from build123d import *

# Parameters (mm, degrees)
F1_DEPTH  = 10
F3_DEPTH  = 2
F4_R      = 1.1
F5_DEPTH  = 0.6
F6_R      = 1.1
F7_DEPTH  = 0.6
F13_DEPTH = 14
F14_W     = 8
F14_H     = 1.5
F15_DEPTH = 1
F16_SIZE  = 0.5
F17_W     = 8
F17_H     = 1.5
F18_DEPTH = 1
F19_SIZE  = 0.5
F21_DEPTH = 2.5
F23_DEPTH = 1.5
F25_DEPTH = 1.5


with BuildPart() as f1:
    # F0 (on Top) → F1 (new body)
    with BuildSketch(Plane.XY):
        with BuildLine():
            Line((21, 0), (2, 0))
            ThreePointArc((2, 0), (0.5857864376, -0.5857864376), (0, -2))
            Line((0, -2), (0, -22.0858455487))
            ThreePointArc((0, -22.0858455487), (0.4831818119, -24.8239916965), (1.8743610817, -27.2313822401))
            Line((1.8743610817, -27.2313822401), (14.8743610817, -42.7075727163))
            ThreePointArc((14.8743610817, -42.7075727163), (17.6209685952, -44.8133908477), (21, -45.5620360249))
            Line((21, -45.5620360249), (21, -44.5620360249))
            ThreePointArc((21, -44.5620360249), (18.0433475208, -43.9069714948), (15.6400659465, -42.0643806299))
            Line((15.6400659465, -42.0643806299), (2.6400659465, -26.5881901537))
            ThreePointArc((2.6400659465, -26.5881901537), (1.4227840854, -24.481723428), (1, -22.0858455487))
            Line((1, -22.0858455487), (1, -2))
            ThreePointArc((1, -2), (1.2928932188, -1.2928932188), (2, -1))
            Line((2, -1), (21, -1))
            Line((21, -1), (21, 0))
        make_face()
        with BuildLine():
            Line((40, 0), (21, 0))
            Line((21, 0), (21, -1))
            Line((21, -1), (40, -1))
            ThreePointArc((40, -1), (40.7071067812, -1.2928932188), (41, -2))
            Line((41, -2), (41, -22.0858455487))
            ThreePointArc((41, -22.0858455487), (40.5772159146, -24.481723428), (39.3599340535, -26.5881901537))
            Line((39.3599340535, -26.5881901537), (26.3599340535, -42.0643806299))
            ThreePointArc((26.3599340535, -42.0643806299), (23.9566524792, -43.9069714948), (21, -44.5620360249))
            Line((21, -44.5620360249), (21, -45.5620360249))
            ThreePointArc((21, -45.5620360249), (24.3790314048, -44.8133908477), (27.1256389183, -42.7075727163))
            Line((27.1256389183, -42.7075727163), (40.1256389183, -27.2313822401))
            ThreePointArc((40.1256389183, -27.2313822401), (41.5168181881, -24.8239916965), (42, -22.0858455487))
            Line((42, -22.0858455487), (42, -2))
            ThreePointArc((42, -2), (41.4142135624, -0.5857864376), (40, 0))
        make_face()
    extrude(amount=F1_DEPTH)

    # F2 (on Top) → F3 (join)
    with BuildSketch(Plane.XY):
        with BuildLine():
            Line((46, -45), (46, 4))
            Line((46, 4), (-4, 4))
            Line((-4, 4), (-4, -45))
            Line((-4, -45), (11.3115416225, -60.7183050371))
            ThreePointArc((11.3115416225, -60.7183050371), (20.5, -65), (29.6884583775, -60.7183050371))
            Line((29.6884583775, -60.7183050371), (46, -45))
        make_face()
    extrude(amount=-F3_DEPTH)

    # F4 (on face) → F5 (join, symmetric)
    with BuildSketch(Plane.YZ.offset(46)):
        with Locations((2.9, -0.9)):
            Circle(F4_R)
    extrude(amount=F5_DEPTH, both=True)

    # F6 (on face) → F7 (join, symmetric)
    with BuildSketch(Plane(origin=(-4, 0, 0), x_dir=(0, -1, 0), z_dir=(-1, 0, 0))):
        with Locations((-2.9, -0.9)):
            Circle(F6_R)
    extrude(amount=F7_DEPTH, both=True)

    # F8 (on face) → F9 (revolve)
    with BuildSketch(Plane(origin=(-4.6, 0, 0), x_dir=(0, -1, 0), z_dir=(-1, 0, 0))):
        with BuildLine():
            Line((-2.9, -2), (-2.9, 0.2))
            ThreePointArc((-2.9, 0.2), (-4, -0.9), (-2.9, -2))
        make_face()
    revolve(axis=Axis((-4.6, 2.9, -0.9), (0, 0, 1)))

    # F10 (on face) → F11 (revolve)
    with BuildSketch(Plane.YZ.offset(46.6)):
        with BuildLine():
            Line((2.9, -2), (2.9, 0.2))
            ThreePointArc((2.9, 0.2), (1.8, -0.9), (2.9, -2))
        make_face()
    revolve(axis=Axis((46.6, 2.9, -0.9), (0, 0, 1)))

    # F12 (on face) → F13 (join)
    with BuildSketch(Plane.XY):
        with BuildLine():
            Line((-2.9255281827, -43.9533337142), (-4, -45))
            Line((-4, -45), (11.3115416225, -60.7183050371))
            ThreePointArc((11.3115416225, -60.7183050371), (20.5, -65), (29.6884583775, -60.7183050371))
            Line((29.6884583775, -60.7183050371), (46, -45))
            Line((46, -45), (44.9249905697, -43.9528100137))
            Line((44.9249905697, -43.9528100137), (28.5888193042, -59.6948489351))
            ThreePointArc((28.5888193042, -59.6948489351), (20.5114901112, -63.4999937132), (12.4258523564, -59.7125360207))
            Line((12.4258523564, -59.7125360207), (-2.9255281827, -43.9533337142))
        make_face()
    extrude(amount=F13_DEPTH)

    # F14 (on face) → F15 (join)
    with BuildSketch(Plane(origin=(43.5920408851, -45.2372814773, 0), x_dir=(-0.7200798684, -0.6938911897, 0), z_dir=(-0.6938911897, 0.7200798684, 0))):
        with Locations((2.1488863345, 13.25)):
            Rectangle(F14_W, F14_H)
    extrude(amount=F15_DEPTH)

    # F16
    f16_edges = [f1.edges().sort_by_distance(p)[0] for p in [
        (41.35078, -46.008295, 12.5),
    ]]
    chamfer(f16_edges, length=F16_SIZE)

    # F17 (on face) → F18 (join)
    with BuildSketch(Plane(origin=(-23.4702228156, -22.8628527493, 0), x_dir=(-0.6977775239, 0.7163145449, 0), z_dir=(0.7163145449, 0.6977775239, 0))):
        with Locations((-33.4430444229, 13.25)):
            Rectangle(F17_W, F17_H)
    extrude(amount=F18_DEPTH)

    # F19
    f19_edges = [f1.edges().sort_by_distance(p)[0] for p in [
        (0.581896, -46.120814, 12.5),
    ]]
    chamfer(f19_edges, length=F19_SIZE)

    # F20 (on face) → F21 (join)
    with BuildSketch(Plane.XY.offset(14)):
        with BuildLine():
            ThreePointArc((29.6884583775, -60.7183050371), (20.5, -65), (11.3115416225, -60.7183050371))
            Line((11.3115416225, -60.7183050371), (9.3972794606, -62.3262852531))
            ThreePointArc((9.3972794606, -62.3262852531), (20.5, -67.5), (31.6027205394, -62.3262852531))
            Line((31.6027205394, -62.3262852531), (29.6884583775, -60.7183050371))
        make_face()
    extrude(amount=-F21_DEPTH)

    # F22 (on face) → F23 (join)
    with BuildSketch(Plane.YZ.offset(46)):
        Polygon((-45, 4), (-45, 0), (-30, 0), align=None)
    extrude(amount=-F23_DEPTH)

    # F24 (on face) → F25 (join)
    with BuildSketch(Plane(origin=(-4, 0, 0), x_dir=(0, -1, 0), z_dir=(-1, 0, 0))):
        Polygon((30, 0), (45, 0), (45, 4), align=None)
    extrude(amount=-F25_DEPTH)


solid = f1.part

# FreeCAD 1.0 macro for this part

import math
import FreeCAD as App
import Part
import Sketcher
Q = App.Units.Quantity


def edges_at(feature, points):
    """Names of the edges that pass closest to the given points."""
    edges = feature.Shape.Edges
    near = lambda p: min(range(len(edges)), key=lambda i: edges[i].distToShape(Part.Vertex(*p))[0])
    return sorted({f"Edge{near(p) + 1}" for p in points})

doc = App.newDocument("Part")
body = doc.addObject("PartDesign::Body", "Body")

# Sketch on XY plane
sketch1 = body.newObject("Sketcher::SketchObject", "Sketch")
sketch1.AttachmentSupport = (doc.getObject("XY_Plane"), [""])
sketch1.MapMode = "FlatFace"
sketch1.addGeometry(Part.ArcOfCircle(Part.Circle(App.Vector(2, -2, 0), App.Vector(0, 0, 1), 2), math.radians(90), math.radians(180)), False)
sketch1.addGeometry(Part.LineSegment(App.Vector(0, -2, 0), App.Vector(0, -22.1, 0)), False)
sketch1.addGeometry(Part.ArcOfCircle(Part.Circle(App.Vector(8, -22.1, 0), App.Vector(0, 0, 1), 8), math.radians(180), math.radians(220)), False)
sketch1.addGeometry(Part.LineSegment(App.Vector(1.9, -27.2, 0), App.Vector(14.9, -42.7, 0)), False)
sketch1.addGeometry(Part.ArcOfCircle(Part.Circle(App.Vector(21, -37.6, 0), App.Vector(0, 0, 1), 8), math.radians(-140), math.radians(-90)), False)
sketch1.addGeometry(Part.ArcOfCircle(Part.Circle(App.Vector(21, -37.6, 0), App.Vector(0, 0, 1), 8), math.radians(-90), math.radians(-40)), False)
sketch1.addGeometry(Part.LineSegment(App.Vector(27.1, -42.7, 0), App.Vector(40.1, -27.2, 0)), False)
sketch1.addGeometry(Part.ArcOfCircle(Part.Circle(App.Vector(34, -22.1, 0), App.Vector(0, 0, 1), 8), math.radians(-40), math.radians(0)), False)
sketch1.addGeometry(Part.LineSegment(App.Vector(42, -22.1, 0), App.Vector(42, -2, 0)), False)
sketch1.addGeometry(Part.ArcOfCircle(Part.Circle(App.Vector(40, -2, 0), App.Vector(0, 0, 1), 2), math.radians(0), math.radians(90)), False)
sketch1.addGeometry(Part.LineSegment(App.Vector(40, 0, 0), App.Vector(2, 0, 0)), False)
sketch1.addGeometry(Part.ArcOfCircle(Part.Circle(App.Vector(21, -37.6, 0), App.Vector(0, 0, 1), 7), math.radians(-140), math.radians(-90)), False)
sketch1.addGeometry(Part.LineSegment(App.Vector(15.6, -42.1, 0), App.Vector(2.6, -26.6, 0)), False)
sketch1.addGeometry(Part.ArcOfCircle(Part.Circle(App.Vector(8, -22.1, 0), App.Vector(0, 0, 1), 7), math.radians(180), math.radians(220)), False)
sketch1.addGeometry(Part.LineSegment(App.Vector(1, -22.1, 0), App.Vector(1, -2, 0)), False)
sketch1.addGeometry(Part.ArcOfCircle(Part.Circle(App.Vector(2, -2, 0), App.Vector(0, 0, 1), 1), math.radians(90), math.radians(180)), False)
sketch1.addGeometry(Part.LineSegment(App.Vector(2, -1, 0), App.Vector(40, -1, 0)), False)
sketch1.addGeometry(Part.ArcOfCircle(Part.Circle(App.Vector(40, -2, 0), App.Vector(0, 0, 1), 1), math.radians(0), math.radians(90)), False)
sketch1.addGeometry(Part.LineSegment(App.Vector(41, -2, 0), App.Vector(41, -22.1, 0)), False)
sketch1.addGeometry(Part.ArcOfCircle(Part.Circle(App.Vector(34, -22.1, 0), App.Vector(0, 0, 1), 7), math.radians(-40), math.radians(0)), False)
sketch1.addGeometry(Part.LineSegment(App.Vector(39.4, -26.6, 0), App.Vector(26.4, -42.1, 0)), False)
sketch1.addGeometry(Part.ArcOfCircle(Part.Circle(App.Vector(21, -37.6, 0), App.Vector(0, 0, 1), 7), math.radians(-90), math.radians(-40)), False)
sketch1.addConstraint(Sketcher.Constraint("Tangent", 0, 2, 1, 1))
sketch1.addConstraint(Sketcher.Constraint("Tangent", 1, 2, 2, 1))
sketch1.addConstraint(Sketcher.Constraint("Tangent", 2, 2, 3, 1))
sketch1.addConstraint(Sketcher.Constraint("Tangent", 3, 2, 4, 1))
sketch1.addConstraint(Sketcher.Constraint("Tangent", 4, 2, 5, 1))
sketch1.addConstraint(Sketcher.Constraint("Tangent", 5, 2, 6, 1))
sketch1.addConstraint(Sketcher.Constraint("Tangent", 6, 2, 7, 1))
sketch1.addConstraint(Sketcher.Constraint("Tangent", 7, 2, 8, 1))
sketch1.addConstraint(Sketcher.Constraint("Tangent", 8, 2, 9, 1))
sketch1.addConstraint(Sketcher.Constraint("Tangent", 9, 2, 10, 1))
sketch1.addConstraint(Sketcher.Constraint("Tangent", 10, 2, 0, 1))
sketch1.addConstraint(Sketcher.Constraint("Tangent", 11, 1, 12, 1))
sketch1.addConstraint(Sketcher.Constraint("Tangent", 12, 2, 13, 2))
sketch1.addConstraint(Sketcher.Constraint("Tangent", 13, 1, 14, 1))
sketch1.addConstraint(Sketcher.Constraint("Tangent", 14, 2, 15, 2))
sketch1.addConstraint(Sketcher.Constraint("Tangent", 15, 1, 16, 1))
sketch1.addConstraint(Sketcher.Constraint("Tangent", 16, 2, 17, 2))
sketch1.addConstraint(Sketcher.Constraint("Tangent", 17, 1, 18, 1))
sketch1.addConstraint(Sketcher.Constraint("Tangent", 18, 2, 19, 2))
sketch1.addConstraint(Sketcher.Constraint("Tangent", 19, 1, 20, 1))
sketch1.addConstraint(Sketcher.Constraint("Tangent", 20, 2, 21, 2))
sketch1.addConstraint(Sketcher.Constraint("Tangent", 21, 1, 11, 2))
sketch1.addConstraint(Sketcher.Constraint("Vertical", 1))
sketch1.addConstraint(Sketcher.Constraint("Vertical", 8))
sketch1.addConstraint(Sketcher.Constraint("Horizontal", 10))
sketch1.addConstraint(Sketcher.Constraint("Vertical", 14))
sketch1.addConstraint(Sketcher.Constraint("Horizontal", 16))
sketch1.addConstraint(Sketcher.Constraint("Vertical", 18))
sketch1.addConstraint(Sketcher.Constraint("Coincident", 11, 3, 4, 3))
sketch1.addConstraint(Sketcher.Constraint("Coincident", 13, 3, 2, 3))
sketch1.addConstraint(Sketcher.Constraint("Coincident", 15, 3, 0, 3))
sketch1.addConstraint(Sketcher.Constraint("Coincident", 17, 3, 9, 3))
sketch1.addConstraint(Sketcher.Constraint("Coincident", 19, 3, 7, 3))
sketch1.addConstraint(Sketcher.Constraint("Equal", 2, 4))
sketch1.addConstraint(Sketcher.Constraint("Equal", 4, 5))
sketch1.addConstraint(Sketcher.Constraint("Equal", 5, 7))
sketch1.addConstraint(Sketcher.Constraint("Equal", 0, 9))
sketch1.addConstraint(Sketcher.Constraint("Equal", 11, 13))
sketch1.addConstraint(Sketcher.Constraint("Equal", 19, 21))
sketch1.addConstraint(Sketcher.Constraint("PointOnObject", 0, 2, -2))
sketch1.addConstraint(Sketcher.Constraint("PointOnObject", 9, 2, -1))
sketch1.addConstraint(Sketcher.Constraint("Horizontal", 2, 3, 7, 3))
sketch1.addConstraint(Sketcher.Constraint("Horizontal", 3, 2, 5, 2))
sketch1.addConstraint(Sketcher.Constraint("Vertical", 21, 3, 4, 2))
sketch1.addConstraint(Sketcher.Constraint("Vertical", 4, 2, 21, 1))
sketch1.addConstraint(Sketcher.Constraint("Radius", 0, Q("2 mm")))
sketch1.addConstraint(Sketcher.Constraint("Radius", 2, Q("8 mm")))
sketch1.addConstraint(Sketcher.Constraint("Radius", 11, Q("7 mm")))
sketch1.addConstraint(Sketcher.Constraint("DistanceX", 10, 2, 10, 1, Q("38 mm")))
sketch1.addConstraint(Sketcher.Constraint("Distance", 3, Q("20.211691 mm")))
sketch1.addConstraint(Sketcher.Constraint("DistanceY", 1, 2, 1, 1, Q("20.085846 mm")))
pad1 = body.newObject("PartDesign::Pad", "Pad")
pad1.Profile = sketch1
pad1.Length = 10

# Sketch on XY plane
sketch2 = body.newObject("Sketcher::SketchObject", "Sketch001")
sketch2.AttachmentSupport = (doc.getObject("XY_Plane"), [""])
sketch2.MapMode = "FlatFace"
sketch2.addGeometry(Part.LineSegment(App.Vector(46, -45, 0), App.Vector(46, 4, 0)), False)
sketch2.addGeometry(Part.LineSegment(App.Vector(46, 4, 0), App.Vector(-4, 4, 0)), False)
sketch2.addGeometry(Part.LineSegment(App.Vector(-4, 4, 0), App.Vector(-4, -45, 0)), False)
sketch2.addGeometry(Part.LineSegment(App.Vector(-4, -45, 0), App.Vector(11, -61, 0)), False)
sketch2.addGeometry(Part.ArcOfCircle(Part.Circle(App.Vector(20, -53, 0), App.Vector(0, 0, 1), 12), math.radians(-140), math.radians(-40)), False)
sketch2.addGeometry(Part.LineSegment(App.Vector(30, -61, 0), App.Vector(46, -45, 0)), False)
sketch2.addConstraint(Sketcher.Constraint("Coincident", 0, 2, 1, 1))
sketch2.addConstraint(Sketcher.Constraint("Coincident", 1, 2, 2, 1))
sketch2.addConstraint(Sketcher.Constraint("Coincident", 2, 2, 3, 1))
sketch2.addConstraint(Sketcher.Constraint("Coincident", 3, 2, 4, 1))
sketch2.addConstraint(Sketcher.Constraint("Coincident", 4, 2, 5, 1))
sketch2.addConstraint(Sketcher.Constraint("Coincident", 5, 2, 0, 1))
sketch2.addConstraint(Sketcher.Constraint("Vertical", 0))
sketch2.addConstraint(Sketcher.Constraint("Horizontal", 1))
sketch2.addConstraint(Sketcher.Constraint("Vertical", 2))
sketch2.addConstraint(Sketcher.Constraint("Horizontal", 3, 2, 4, 2))
sketch2.addConstraint(Sketcher.Constraint("Horizontal", 2, 2, 5, 2))
sketch2.addConstraint(Sketcher.Constraint("Radius", 4, Q("12 mm")))
sketch2.addConstraint(Sketcher.Constraint("DistanceX", 1, 2, 1, 1, Q("50 mm")))
sketch2.addConstraint(Sketcher.Constraint("DistanceY", 0, 1, 0, 2, Q("49 mm")))
sketch2.addConstraint(Sketcher.Constraint("DistanceY", 4, 3, -1, 1, Q("53 mm")))
sketch2.addConstraint(Sketcher.Constraint("DistanceX", -1, 1, 0, 2, Q("46 mm")))
sketch2.addConstraint(Sketcher.Constraint("DistanceY", -1, 1, 0, 2, Q("4 mm")))
sketch2.addConstraint(Sketcher.Constraint("DistanceX", -1, 1, 4, 3, Q("20.5 mm")))
sketch2.addConstraint(Sketcher.Constraint("Distance", 3, Q("21.9433 mm")))
pad2 = body.newObject("PartDesign::Pad", "Pad001")
pad2.Profile = sketch2
pad2.Length = 2
pad2.Reversed = True

# Sketch on YZ plane
sketch3 = body.newObject("Sketcher::SketchObject", "Sketch002")
sketch3.AttachmentSupport = (doc.getObject("YZ_Plane"), [""])
sketch3.MapMode = "FlatFace"
sketch3.AttachmentOffset = App.Placement(App.Vector(0, 0, 46), App.Rotation())
sketch3.addGeometry(Part.Circle(App.Vector(2.9, -0.9, 0), App.Vector(0, 0, 1), 1.1), False)
sketch3.addConstraint(Sketcher.Constraint("Diameter", 0, Q("2.2 mm")))
sketch3.addConstraint(Sketcher.Constraint("DistanceX", -1, 1, 0, 3, Q("2.9 mm")))
sketch3.addConstraint(Sketcher.Constraint("DistanceY", 0, 3, -1, 1, Q("0.9 mm")))
pad3 = body.newObject("PartDesign::Pad", "Pad002")
pad3.Profile = sketch3
pad3.Length = 1.2
pad3.Midplane = True

# Sketch on YZ plane
sketch4 = body.newObject("Sketcher::SketchObject", "Sketch003")
sketch4.AttachmentSupport = (doc.getObject("YZ_Plane"), [""])
sketch4.MapMode = "FlatFace"
sketch4.AttachmentOffset = App.Placement(App.Vector(0, 0, -4), App.Rotation())
sketch4.addGeometry(Part.Circle(App.Vector(2.9, -0.9, 0), App.Vector(0, 0, 1), 1.1), False)
sketch4.addConstraint(Sketcher.Constraint("Diameter", 0, Q("2.2 mm")))
sketch4.addConstraint(Sketcher.Constraint("DistanceX", -1, 1, 0, 3, Q("2.9 mm")))
sketch4.addConstraint(Sketcher.Constraint("DistanceY", 0, 3, -1, 1, Q("0.9 mm")))
pad4 = body.newObject("PartDesign::Pad", "Pad003")
pad4.Profile = sketch4
pad4.Length = 1.2
pad4.Midplane = True

# Sketch on YZ plane
sketch5 = body.newObject("Sketcher::SketchObject", "Sketch004")
sketch5.AttachmentSupport = (doc.getObject("YZ_Plane"), [""])
sketch5.MapMode = "FlatFace"
sketch5.AttachmentOffset = App.Placement(App.Vector(0, 0, -4.6), App.Rotation())
sketch5.addGeometry(Part.LineSegment(App.Vector(2.9, -2, 0), App.Vector(2.9, 0.2, 0)), False)
sketch5.addGeometry(Part.ArcOfCircle(Part.Circle(App.Vector(2.9, -0.9, 0), App.Vector(0, 0, 1), 1.1), math.radians(-90), math.radians(90)), False)
sketch5.addGeometry(Part.LineSegment(App.Vector(2.9, -2, 0), App.Vector(2.9, 0.2, 0)), True)  # axis
sketch5.addConstraint(Sketcher.Constraint("Coincident", 0, 1, 1, 1))
sketch5.addConstraint(Sketcher.Constraint("Coincident", 1, 2, 0, 2))
sketch5.addConstraint(Sketcher.Constraint("Vertical", 0))
sketch5.addConstraint(Sketcher.Constraint("Vertical", 2))
sketch5.addConstraint(Sketcher.Constraint("Coincident", 2, 1, 0, 1))
sketch5.addConstraint(Sketcher.Constraint("Vertical", 1, 3, 0, 1))
sketch5.addConstraint(Sketcher.Constraint("Equal", 0, 2))
sketch5.addConstraint(Sketcher.Constraint("Radius", 1, Q("1.1 mm")))
sketch5.addConstraint(Sketcher.Constraint("DistanceY", 0, 1, -1, 1, Q("2 mm")))
sketch5.addConstraint(Sketcher.Constraint("DistanceX", -1, 1, 1, 3, Q("2.9 mm")))
revolution = body.newObject("PartDesign::Revolution", "Revolution")
revolution.Profile = sketch5
revolution.ReferenceAxis = (sketch5, ["Axis0"])
revolution.Angle = 360

# Sketch on YZ plane
sketch6 = body.newObject("Sketcher::SketchObject", "Sketch005")
sketch6.AttachmentSupport = (doc.getObject("YZ_Plane"), [""])
sketch6.MapMode = "FlatFace"
sketch6.AttachmentOffset = App.Placement(App.Vector(0, 0, 46.6), App.Rotation())
sketch6.addGeometry(Part.LineSegment(App.Vector(2.9, -2, 0), App.Vector(2.9, 0.2, 0)), False)
sketch6.addGeometry(Part.ArcOfCircle(Part.Circle(App.Vector(2.9, -0.9, 0), App.Vector(0, 0, 1), 1.1), math.radians(90), math.radians(270)), False)
sketch6.addGeometry(Part.LineSegment(App.Vector(2.9, -2, 0), App.Vector(2.9, 0.2, 0)), True)  # axis
sketch6.addConstraint(Sketcher.Constraint("Coincident", 0, 1, 1, 2))
sketch6.addConstraint(Sketcher.Constraint("Coincident", 1, 1, 0, 2))
sketch6.addConstraint(Sketcher.Constraint("Vertical", 0))
sketch6.addConstraint(Sketcher.Constraint("Vertical", 2))
sketch6.addConstraint(Sketcher.Constraint("Coincident", 2, 1, 0, 1))
sketch6.addConstraint(Sketcher.Constraint("Vertical", 1, 3, 0, 1))
sketch6.addConstraint(Sketcher.Constraint("Equal", 0, 2))
sketch6.addConstraint(Sketcher.Constraint("Radius", 1, Q("1.1 mm")))
sketch6.addConstraint(Sketcher.Constraint("DistanceY", 0, 1, -1, 1, Q("2 mm")))
sketch6.addConstraint(Sketcher.Constraint("DistanceX", -1, 1, 1, 3, Q("2.9 mm")))
revolution2 = body.newObject("PartDesign::Revolution", "Revolution001")
revolution2.Profile = sketch6
revolution2.ReferenceAxis = (sketch6, ["Axis0"])
revolution2.Angle = 360

# Sketch on XY plane
sketch7 = body.newObject("Sketcher::SketchObject", "Sketch006")
sketch7.AttachmentSupport = (doc.getObject("XY_Plane"), [""])
sketch7.MapMode = "FlatFace"
sketch7.addGeometry(Part.LineSegment(App.Vector(-2.9, -44, 0), App.Vector(-4, -45, 0)), False)
sketch7.addGeometry(Part.LineSegment(App.Vector(-4, -45, 0), App.Vector(11.3, -60.7, 0)), False)
sketch7.addGeometry(Part.ArcOfCircle(Part.Circle(App.Vector(20.5, -53, 0), App.Vector(0, 0, 1), 12), math.radians(-140), math.radians(-40)), False)
sketch7.addGeometry(Part.LineSegment(App.Vector(29.7, -60.7, 0), App.Vector(46, -45, 0)), False)
sketch7.addGeometry(Part.LineSegment(App.Vector(46, -45, 0), App.Vector(44.9, -44, 0)), False)
sketch7.addGeometry(Part.LineSegment(App.Vector(44.9, -44, 0), App.Vector(28.6, -59.7, 0)), False)
sketch7.addGeometry(Part.ArcOfCircle(Part.Circle(App.Vector(20.5, -53, 0), App.Vector(0, 0, 1), 10.5), math.radians(-140), math.radians(-40)), False)
sketch7.addGeometry(Part.LineSegment(App.Vector(12.4, -59.7, 0), App.Vector(-2.9, -44, 0)), False)
sketch7.addConstraint(Sketcher.Constraint("Coincident", 0, 2, 1, 1))
sketch7.addConstraint(Sketcher.Constraint("Coincident", 1, 2, 2, 1))
sketch7.addConstraint(Sketcher.Constraint("Coincident", 2, 2, 3, 1))
sketch7.addConstraint(Sketcher.Constraint("Coincident", 3, 2, 4, 1))
sketch7.addConstraint(Sketcher.Constraint("Coincident", 4, 2, 5, 1))
sketch7.addConstraint(Sketcher.Constraint("Coincident", 5, 2, 6, 2))
sketch7.addConstraint(Sketcher.Constraint("Coincident", 6, 1, 7, 1))
sketch7.addConstraint(Sketcher.Constraint("Coincident", 7, 2, 0, 1))
sketch7.addConstraint(Sketcher.Constraint("Coincident", 6, 3, 2, 3))
sketch7.addConstraint(Sketcher.Constraint("Perpendicular", 0, 1))
sketch7.addConstraint(Sketcher.Constraint("Parallel", 3, 5))
sketch7.addConstraint(Sketcher.Constraint("Parallel", 1, 7))
sketch7.addConstraint(Sketcher.Constraint("Horizontal", 1, 2, 2, 2))
sketch7.addConstraint(Sketcher.Constraint("Horizontal", 0, 2, 3, 2))
sketch7.addConstraint(Sketcher.Constraint("Radius", 2, Q("12 mm")))
sketch7.addConstraint(Sketcher.Constraint("Radius", 6, Q("10.5 mm")))
sketch7.addConstraint(Sketcher.Constraint("DistanceY", 2, 3, -1, 1, Q("53 mm")))
sketch7.addConstraint(Sketcher.Constraint("DistanceX", 0, 2, -1, 1, Q("4 mm")))
sketch7.addConstraint(Sketcher.Constraint("DistanceY", 0, 2, -1, 1, Q("45 mm")))
sketch7.addConstraint(Sketcher.Constraint("DistanceX", -1, 1, 3, 2, Q("46 mm")))
sketch7.addConstraint(Sketcher.Constraint("Distance", 0, Q("1.5 mm")))
sketch7.addConstraint(Sketcher.Constraint("DistanceX", -1, 1, 2, 3, Q("20.5 mm")))
sketch7.addConstraint(Sketcher.Constraint("Distance", 1, Q("21.9433 mm")))
sketch7.addConstraint(Sketcher.Constraint("Distance", 4, Q("1.500751 mm")))
sketch7.addConstraint(Sketcher.Constraint("Distance", 5, Q("22.68661 mm")))
pad5 = body.newObject("PartDesign::Pad", "Pad004")
pad5.Profile = sketch7
pad5.Length = 14

# Sketch on an angled plane
sketch8 = body.newObject("Sketcher::SketchObject", "Sketch007")
sketch8.Placement = App.Placement(App.Vector(43.592041, -45.237281, 0), App.Rotation(App.Vector(-0.720079868, -0.69389119, 0), App.Vector(0, 0, 1), App.Vector(-0.69389119, 0.720079868, 0), "ZXY"))
sketch8.addGeometry(Part.LineSegment(App.Vector(-1.9, 14, 0), App.Vector(-1.9, 12.5, 0)), False)
sketch8.addGeometry(Part.LineSegment(App.Vector(-1.9, 12.5, 0), App.Vector(6.1, 12.5, 0)), False)
sketch8.addGeometry(Part.LineSegment(App.Vector(6.1, 12.5, 0), App.Vector(6.1, 14, 0)), False)
sketch8.addGeometry(Part.LineSegment(App.Vector(6.1, 14, 0), App.Vector(-1.9, 14, 0)), False)
sketch8.addConstraint(Sketcher.Constraint("Coincident", 0, 2, 1, 1))
sketch8.addConstraint(Sketcher.Constraint("Coincident", 1, 2, 2, 1))
sketch8.addConstraint(Sketcher.Constraint("Coincident", 2, 2, 3, 1))
sketch8.addConstraint(Sketcher.Constraint("Coincident", 3, 2, 0, 1))
sketch8.addConstraint(Sketcher.Constraint("Vertical", 0))
sketch8.addConstraint(Sketcher.Constraint("Horizontal", 1))
sketch8.addConstraint(Sketcher.Constraint("Vertical", 2))
sketch8.addConstraint(Sketcher.Constraint("Horizontal", 3))
sketch8.addConstraint(Sketcher.Constraint("DistanceX", 1, 1, 1, 2, Q("8 mm")))
sketch8.addConstraint(Sketcher.Constraint("DistanceY", 0, 2, 0, 1, Q("1.5 mm")))
sketch8.addConstraint(Sketcher.Constraint("DistanceY", -1, 1, 2, 2, Q("14 mm")))
sketch8.addConstraint(Sketcher.Constraint("DistanceX", 0, 2, -1, 1, Q("1.851114 mm")))
pad6 = body.newObject("PartDesign::Pad", "Pad005")
pad6.Profile = sketch8
pad6.Length = 1
doc.recompute()

chamfer = body.newObject("PartDesign::Chamfer", "Chamfer")
chamfer.Base = (pad6, edges_at(pad6, [(41.351, -46.008, 12.5)]))
chamfer.Size = 0.5

# Sketch on an angled plane
sketch9 = body.newObject("Sketcher::SketchObject", "Sketch008")
sketch9.Placement = App.Placement(App.Vector(-23.470223, -22.862853, 0), App.Rotation(App.Vector(-0.697777524, 0.716314545, 0), App.Vector(0, 0, 1), App.Vector(0.716314545, 0.697777524, 0), "ZXY"))
sketch9.addGeometry(Part.LineSegment(App.Vector(-37.4, 14, 0), App.Vector(-37.4, 12.5, 0)), False)
sketch9.addGeometry(Part.LineSegment(App.Vector(-37.4, 12.5, 0), App.Vector(-29.4, 12.5, 0)), False)
sketch9.addGeometry(Part.LineSegment(App.Vector(-29.4, 12.5, 0), App.Vector(-29.4, 14, 0)), False)
sketch9.addGeometry(Part.LineSegment(App.Vector(-29.4, 14, 0), App.Vector(-37.4, 14, 0)), False)
sketch9.addConstraint(Sketcher.Constraint("Coincident", 0, 2, 1, 1))
sketch9.addConstraint(Sketcher.Constraint("Coincident", 1, 2, 2, 1))
sketch9.addConstraint(Sketcher.Constraint("Coincident", 2, 2, 3, 1))
sketch9.addConstraint(Sketcher.Constraint("Coincident", 3, 2, 0, 1))
sketch9.addConstraint(Sketcher.Constraint("Vertical", 0))
sketch9.addConstraint(Sketcher.Constraint("Horizontal", 1))
sketch9.addConstraint(Sketcher.Constraint("Vertical", 2))
sketch9.addConstraint(Sketcher.Constraint("Horizontal", 3))
sketch9.addConstraint(Sketcher.Constraint("DistanceX", 1, 1, 1, 2, Q("8 mm")))
sketch9.addConstraint(Sketcher.Constraint("DistanceY", 0, 2, 0, 1, Q("1.5 mm")))
sketch9.addConstraint(Sketcher.Constraint("DistanceY", -1, 1, 2, 2, Q("14 mm")))
sketch9.addConstraint(Sketcher.Constraint("DistanceX", 0, 2, -1, 1, Q("37.443044 mm")))
pad7 = body.newObject("PartDesign::Pad", "Pad006")
pad7.Profile = sketch9
pad7.Length = 1
doc.recompute()

chamfer2 = body.newObject("PartDesign::Chamfer", "Chamfer001")
chamfer2.Base = (pad7, edges_at(pad7, [(0.582, -46.121, 12.5)]))
chamfer2.Size = 0.5

# Sketch on XY plane
sketch10 = body.newObject("Sketcher::SketchObject", "Sketch009")
sketch10.AttachmentSupport = (doc.getObject("XY_Plane"), [""])
sketch10.MapMode = "FlatFace"
sketch10.AttachmentOffset = App.Placement(App.Vector(0, 0, 14), App.Rotation())
sketch10.addGeometry(Part.ArcOfCircle(Part.Circle(App.Vector(20.5, -53, 0), App.Vector(0, 0, 1), 12), math.radians(-140), math.radians(-40)), False)
sketch10.addGeometry(Part.LineSegment(App.Vector(11.3, -60.7, 0), App.Vector(9.4, -62.3, 0)), False)
sketch10.addGeometry(Part.ArcOfCircle(Part.Circle(App.Vector(20.5, -53, 0), App.Vector(0, 0, 1), 14.5), math.radians(-140), math.radians(-40)), False)
sketch10.addGeometry(Part.LineSegment(App.Vector(31.6, -62.3, 0), App.Vector(29.7, -60.7, 0)), False)
sketch10.addConstraint(Sketcher.Constraint("Coincident", 0, 1, 1, 1))
sketch10.addConstraint(Sketcher.Constraint("Coincident", 1, 2, 2, 1))
sketch10.addConstraint(Sketcher.Constraint("Coincident", 2, 2, 3, 1))
sketch10.addConstraint(Sketcher.Constraint("Coincident", 3, 2, 0, 2))
sketch10.addConstraint(Sketcher.Constraint("Coincident", 2, 3, 0, 3))
sketch10.addConstraint(Sketcher.Constraint("Horizontal", 1, 2, 2, 2))
sketch10.addConstraint(Sketcher.Constraint("Horizontal", 0, 1, 3, 2))
sketch10.addConstraint(Sketcher.Constraint("Radius", 0, Q("12 mm")))
sketch10.addConstraint(Sketcher.Constraint("Radius", 2, Q("14.5 mm")))
sketch10.addConstraint(Sketcher.Constraint("DistanceY", 0, 3, -1, 1, Q("53 mm")))
sketch10.addConstraint(Sketcher.Constraint("DistanceX", -1, 1, 0, 3, Q("20.5 mm")))
sketch10.addConstraint(Sketcher.Constraint("DistanceX", -1, 1, 0, 1, Q("11.311542 mm")))
sketch10.addConstraint(Sketcher.Constraint("DistanceX", -1, 1, 1, 2, Q("9.397279 mm")))
pad8 = body.newObject("PartDesign::Pad", "Pad007")
pad8.Profile = sketch10
pad8.Length = 2.5
pad8.Reversed = True

# Sketch on YZ plane
sketch11 = body.newObject("Sketcher::SketchObject", "Sketch010")
sketch11.AttachmentSupport = (doc.getObject("YZ_Plane"), [""])
sketch11.MapMode = "FlatFace"
sketch11.AttachmentOffset = App.Placement(App.Vector(0, 0, 46), App.Rotation())
sketch11.addGeometry(Part.LineSegment(App.Vector(-45, 4, 0), App.Vector(-45, 0, 0)), False)
sketch11.addGeometry(Part.LineSegment(App.Vector(-45, 0, 0), App.Vector(-30, 0, 0)), False)
sketch11.addGeometry(Part.LineSegment(App.Vector(-30, 0, 0), App.Vector(-45, 4, 0)), False)
sketch11.addConstraint(Sketcher.Constraint("Coincident", 0, 2, 1, 1))
sketch11.addConstraint(Sketcher.Constraint("Coincident", 1, 2, 2, 1))
sketch11.addConstraint(Sketcher.Constraint("Coincident", 2, 2, 0, 1))
sketch11.addConstraint(Sketcher.Constraint("Vertical", 0))
sketch11.addConstraint(Sketcher.Constraint("Horizontal", 1))
sketch11.addConstraint(Sketcher.Constraint("PointOnObject", 0, 2, -1))
sketch11.addConstraint(Sketcher.Constraint("DistanceX", 1, 1, 1, 2, Q("15 mm")))
sketch11.addConstraint(Sketcher.Constraint("DistanceY", 0, 2, 0, 1, Q("4 mm")))
sketch11.addConstraint(Sketcher.Constraint("DistanceX", 0, 2, -1, 1, Q("45 mm")))
pad9 = body.newObject("PartDesign::Pad", "Pad008")
pad9.Profile = sketch11
pad9.Length = 1.5
pad9.Reversed = True

# Sketch on YZ plane
sketch12 = body.newObject("Sketcher::SketchObject", "Sketch011")
sketch12.AttachmentSupport = (doc.getObject("YZ_Plane"), [""])
sketch12.MapMode = "FlatFace"
sketch12.AttachmentOffset = App.Placement(App.Vector(0, 0, -4), App.Rotation())
sketch12.addGeometry(Part.LineSegment(App.Vector(-30, 0, 0), App.Vector(-45, 0, 0)), False)
sketch12.addGeometry(Part.LineSegment(App.Vector(-45, 0, 0), App.Vector(-45, 4, 0)), False)
sketch12.addGeometry(Part.LineSegment(App.Vector(-45, 4, 0), App.Vector(-30, 0, 0)), False)
sketch12.addConstraint(Sketcher.Constraint("Coincident", 0, 2, 1, 1))
sketch12.addConstraint(Sketcher.Constraint("Coincident", 1, 2, 2, 1))
sketch12.addConstraint(Sketcher.Constraint("Coincident", 2, 2, 0, 1))
sketch12.addConstraint(Sketcher.Constraint("Horizontal", 0))
sketch12.addConstraint(Sketcher.Constraint("Vertical", 1))
sketch12.addConstraint(Sketcher.Constraint("PointOnObject", 0, 2, -1))
sketch12.addConstraint(Sketcher.Constraint("DistanceX", 0, 2, 0, 1, Q("15 mm")))
sketch12.addConstraint(Sketcher.Constraint("DistanceY", 1, 1, 1, 2, Q("4 mm")))
sketch12.addConstraint(Sketcher.Constraint("DistanceX", 0, 2, -1, 1, Q("45 mm")))
pad10 = body.newObject("PartDesign::Pad", "Pad009")
pad10.Profile = sketch12
pad10.Length = 1.5

doc.recompute()
